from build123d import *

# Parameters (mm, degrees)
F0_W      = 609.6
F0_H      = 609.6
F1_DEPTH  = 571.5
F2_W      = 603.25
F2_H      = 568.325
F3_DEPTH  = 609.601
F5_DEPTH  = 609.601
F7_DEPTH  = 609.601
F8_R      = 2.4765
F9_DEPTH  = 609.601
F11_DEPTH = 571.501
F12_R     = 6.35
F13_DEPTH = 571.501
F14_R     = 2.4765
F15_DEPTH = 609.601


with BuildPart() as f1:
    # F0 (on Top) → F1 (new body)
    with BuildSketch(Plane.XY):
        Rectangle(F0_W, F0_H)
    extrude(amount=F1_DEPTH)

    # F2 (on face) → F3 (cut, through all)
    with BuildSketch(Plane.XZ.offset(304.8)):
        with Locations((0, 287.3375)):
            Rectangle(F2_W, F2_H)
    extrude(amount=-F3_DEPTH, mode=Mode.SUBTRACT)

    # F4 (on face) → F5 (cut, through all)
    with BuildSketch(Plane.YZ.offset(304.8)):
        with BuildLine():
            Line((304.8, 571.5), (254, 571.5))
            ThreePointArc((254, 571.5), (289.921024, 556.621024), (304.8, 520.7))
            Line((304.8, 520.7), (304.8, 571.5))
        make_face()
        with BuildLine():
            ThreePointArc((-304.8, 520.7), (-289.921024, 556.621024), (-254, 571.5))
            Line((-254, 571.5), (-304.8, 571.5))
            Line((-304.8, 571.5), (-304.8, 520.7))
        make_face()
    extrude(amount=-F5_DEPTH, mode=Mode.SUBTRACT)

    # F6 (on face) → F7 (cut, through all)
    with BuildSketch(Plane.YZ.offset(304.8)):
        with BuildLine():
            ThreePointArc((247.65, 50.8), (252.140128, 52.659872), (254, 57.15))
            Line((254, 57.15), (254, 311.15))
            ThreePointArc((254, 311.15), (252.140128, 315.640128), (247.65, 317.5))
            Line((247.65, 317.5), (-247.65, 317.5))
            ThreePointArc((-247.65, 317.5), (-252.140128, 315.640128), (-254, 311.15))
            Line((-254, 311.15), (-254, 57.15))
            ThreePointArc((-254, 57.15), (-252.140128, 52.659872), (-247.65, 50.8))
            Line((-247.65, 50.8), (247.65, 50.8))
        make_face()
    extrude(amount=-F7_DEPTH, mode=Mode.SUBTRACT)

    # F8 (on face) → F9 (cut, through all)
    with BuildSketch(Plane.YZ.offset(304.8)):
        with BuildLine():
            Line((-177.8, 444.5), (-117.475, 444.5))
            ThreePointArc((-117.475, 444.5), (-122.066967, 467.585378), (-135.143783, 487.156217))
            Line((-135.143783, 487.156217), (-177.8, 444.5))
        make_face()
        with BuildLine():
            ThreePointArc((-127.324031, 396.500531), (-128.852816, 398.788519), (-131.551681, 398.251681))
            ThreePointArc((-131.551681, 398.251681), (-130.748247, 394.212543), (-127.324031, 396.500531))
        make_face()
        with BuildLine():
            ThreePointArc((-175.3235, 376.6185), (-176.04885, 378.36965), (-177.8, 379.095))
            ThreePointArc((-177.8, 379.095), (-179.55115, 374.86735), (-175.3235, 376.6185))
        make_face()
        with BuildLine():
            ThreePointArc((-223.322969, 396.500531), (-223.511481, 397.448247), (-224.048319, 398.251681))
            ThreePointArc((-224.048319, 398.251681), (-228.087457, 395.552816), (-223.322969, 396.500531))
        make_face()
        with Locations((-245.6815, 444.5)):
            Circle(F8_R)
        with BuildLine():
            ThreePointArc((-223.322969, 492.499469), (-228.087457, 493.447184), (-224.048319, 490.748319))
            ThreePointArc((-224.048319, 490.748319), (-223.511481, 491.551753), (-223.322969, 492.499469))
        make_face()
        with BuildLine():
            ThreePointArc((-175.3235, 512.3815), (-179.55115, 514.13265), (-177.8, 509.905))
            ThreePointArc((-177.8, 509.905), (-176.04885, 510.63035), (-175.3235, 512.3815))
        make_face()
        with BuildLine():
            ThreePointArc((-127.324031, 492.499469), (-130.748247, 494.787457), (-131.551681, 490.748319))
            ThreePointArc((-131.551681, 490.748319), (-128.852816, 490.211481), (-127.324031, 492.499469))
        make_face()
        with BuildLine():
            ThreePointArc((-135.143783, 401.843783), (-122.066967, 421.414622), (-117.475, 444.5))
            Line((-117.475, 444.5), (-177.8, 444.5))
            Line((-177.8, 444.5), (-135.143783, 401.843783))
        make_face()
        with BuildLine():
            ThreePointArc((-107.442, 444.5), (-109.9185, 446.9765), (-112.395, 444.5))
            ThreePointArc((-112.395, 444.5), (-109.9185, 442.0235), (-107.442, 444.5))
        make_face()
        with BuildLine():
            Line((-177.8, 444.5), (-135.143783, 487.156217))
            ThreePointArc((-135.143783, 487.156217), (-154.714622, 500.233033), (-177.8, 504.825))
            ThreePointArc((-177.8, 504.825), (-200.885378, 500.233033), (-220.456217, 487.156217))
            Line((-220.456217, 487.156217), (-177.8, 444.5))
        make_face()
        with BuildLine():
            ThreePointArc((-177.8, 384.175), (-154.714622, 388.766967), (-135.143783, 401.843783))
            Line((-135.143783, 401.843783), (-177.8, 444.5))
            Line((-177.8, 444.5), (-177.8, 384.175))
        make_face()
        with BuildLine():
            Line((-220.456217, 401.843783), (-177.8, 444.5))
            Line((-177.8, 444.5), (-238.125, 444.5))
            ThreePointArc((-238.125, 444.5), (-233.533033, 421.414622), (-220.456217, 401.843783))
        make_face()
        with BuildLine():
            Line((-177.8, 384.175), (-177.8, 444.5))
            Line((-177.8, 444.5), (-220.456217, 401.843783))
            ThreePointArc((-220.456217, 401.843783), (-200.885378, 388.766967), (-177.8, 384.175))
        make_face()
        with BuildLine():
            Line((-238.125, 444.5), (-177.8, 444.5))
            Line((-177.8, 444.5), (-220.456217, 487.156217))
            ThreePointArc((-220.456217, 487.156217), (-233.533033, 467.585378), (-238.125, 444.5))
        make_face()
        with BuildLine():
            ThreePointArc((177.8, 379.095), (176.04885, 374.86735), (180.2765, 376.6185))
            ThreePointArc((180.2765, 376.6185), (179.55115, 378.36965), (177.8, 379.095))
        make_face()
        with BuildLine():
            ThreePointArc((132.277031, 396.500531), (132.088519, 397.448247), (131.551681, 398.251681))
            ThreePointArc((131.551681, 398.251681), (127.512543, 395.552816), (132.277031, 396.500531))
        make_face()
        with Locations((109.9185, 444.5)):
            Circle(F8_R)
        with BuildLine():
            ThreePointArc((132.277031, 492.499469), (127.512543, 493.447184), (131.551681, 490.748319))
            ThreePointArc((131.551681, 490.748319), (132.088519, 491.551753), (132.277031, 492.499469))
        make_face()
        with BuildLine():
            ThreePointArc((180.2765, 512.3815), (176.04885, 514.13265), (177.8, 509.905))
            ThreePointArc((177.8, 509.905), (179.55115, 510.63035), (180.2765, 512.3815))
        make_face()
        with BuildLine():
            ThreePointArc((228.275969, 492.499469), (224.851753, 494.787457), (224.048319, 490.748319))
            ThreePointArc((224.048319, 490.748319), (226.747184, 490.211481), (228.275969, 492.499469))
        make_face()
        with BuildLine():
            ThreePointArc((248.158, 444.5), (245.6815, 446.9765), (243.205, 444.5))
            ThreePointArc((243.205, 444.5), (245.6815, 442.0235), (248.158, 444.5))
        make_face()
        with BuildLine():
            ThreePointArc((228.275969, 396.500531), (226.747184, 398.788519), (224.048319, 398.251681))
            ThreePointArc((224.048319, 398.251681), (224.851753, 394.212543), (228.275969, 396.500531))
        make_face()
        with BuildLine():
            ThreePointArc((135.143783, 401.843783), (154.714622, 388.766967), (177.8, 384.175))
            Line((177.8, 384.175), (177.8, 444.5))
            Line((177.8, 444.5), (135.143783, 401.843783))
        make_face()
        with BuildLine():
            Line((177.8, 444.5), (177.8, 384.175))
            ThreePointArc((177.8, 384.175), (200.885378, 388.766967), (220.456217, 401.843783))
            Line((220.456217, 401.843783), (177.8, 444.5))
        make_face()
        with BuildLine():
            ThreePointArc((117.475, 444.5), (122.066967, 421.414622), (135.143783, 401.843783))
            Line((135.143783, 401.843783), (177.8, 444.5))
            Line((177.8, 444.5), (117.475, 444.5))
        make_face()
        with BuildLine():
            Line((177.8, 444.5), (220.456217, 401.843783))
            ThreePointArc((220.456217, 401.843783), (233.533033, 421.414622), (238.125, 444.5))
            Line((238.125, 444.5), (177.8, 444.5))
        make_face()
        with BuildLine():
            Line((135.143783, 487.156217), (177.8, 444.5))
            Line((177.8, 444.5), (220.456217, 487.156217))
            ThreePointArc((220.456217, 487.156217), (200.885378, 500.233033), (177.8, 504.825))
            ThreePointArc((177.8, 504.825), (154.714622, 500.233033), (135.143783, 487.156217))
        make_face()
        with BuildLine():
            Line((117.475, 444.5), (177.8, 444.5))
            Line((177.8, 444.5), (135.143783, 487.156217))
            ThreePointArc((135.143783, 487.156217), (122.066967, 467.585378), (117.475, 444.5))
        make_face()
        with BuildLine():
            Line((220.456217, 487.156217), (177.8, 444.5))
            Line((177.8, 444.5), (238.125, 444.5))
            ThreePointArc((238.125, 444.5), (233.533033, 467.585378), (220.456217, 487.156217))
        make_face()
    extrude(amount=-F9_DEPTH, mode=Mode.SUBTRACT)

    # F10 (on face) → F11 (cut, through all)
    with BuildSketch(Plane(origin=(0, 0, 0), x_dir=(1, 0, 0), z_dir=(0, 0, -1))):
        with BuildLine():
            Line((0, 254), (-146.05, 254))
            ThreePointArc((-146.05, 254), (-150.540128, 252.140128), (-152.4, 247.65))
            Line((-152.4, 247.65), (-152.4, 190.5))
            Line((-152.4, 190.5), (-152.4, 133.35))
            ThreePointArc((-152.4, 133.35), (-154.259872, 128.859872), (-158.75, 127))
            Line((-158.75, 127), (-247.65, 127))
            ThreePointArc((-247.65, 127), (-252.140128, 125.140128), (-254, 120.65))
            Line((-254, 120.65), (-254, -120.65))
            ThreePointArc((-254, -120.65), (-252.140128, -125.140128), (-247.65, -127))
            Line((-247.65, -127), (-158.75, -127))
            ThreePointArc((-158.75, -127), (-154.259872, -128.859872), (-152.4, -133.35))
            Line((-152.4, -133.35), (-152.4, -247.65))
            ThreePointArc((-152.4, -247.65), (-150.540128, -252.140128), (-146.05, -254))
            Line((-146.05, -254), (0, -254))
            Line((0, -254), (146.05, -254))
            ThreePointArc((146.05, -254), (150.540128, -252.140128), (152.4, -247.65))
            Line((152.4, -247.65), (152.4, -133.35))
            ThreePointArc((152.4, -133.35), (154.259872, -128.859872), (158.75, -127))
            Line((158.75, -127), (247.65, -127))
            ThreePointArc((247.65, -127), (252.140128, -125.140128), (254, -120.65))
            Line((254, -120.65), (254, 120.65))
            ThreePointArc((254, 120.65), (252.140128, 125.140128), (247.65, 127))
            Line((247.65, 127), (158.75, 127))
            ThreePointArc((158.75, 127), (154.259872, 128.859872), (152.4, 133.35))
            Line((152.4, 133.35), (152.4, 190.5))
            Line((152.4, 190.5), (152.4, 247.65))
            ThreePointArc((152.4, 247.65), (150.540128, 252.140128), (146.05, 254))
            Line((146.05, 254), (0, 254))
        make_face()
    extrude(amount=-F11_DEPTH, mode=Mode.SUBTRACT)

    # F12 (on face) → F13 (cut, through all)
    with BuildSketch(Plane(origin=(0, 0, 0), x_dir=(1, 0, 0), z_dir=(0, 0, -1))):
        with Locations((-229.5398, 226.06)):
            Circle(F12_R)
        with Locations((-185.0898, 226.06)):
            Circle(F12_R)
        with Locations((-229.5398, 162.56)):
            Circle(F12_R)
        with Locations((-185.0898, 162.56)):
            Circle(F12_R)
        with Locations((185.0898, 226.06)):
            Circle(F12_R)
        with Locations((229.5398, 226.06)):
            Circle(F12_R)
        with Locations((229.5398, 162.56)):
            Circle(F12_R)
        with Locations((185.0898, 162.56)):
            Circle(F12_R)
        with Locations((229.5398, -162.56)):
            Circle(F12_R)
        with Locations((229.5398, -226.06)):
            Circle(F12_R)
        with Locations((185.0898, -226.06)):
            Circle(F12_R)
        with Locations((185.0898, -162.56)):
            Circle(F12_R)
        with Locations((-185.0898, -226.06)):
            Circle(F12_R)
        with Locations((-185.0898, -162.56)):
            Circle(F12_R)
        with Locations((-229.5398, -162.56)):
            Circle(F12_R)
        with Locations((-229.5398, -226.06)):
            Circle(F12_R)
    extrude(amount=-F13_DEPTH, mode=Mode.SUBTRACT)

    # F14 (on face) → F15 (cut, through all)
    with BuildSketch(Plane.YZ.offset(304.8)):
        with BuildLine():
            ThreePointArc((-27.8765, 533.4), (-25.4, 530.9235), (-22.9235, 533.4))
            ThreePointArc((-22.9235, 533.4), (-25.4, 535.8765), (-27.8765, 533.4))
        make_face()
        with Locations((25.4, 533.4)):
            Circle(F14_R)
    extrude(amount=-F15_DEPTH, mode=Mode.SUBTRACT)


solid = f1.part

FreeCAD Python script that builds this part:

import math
import FreeCAD as App
import Part
import Sketcher

V = App.Vector
Q = App.Units.Quantity


def add_polygon(sketch, points):
    """Adds a closed chain of lines whose ends are joined by coincident constraints."""
    first, n = sketch.GeometryCount, len(points)
    for a, b in zip(points, points[1:] + points[:1]):
        sketch.addGeometry(Part.LineSegment(App.Vector(*a, 0), App.Vector(*b, 0)), False)
    for i in range(n):
        sketch.addConstraint(Sketcher.Constraint("Coincident", first + i, 2, first + (i + 1) % n, 1))

doc = App.newDocument("Part")
body = doc.addObject("PartDesign::Body", "Body")

# Sketch on XY plane
sketch1 = body.newObject("Sketcher::SketchObject", "Sketch")
sketch1.AttachmentSupport = (doc.getObject("XY_Plane"), [""])
sketch1.MapMode = "FlatFace"
add_polygon(sketch1, [(-305, 305), (-305, -305), (305, -305), (305, 305)])  # lines 0-3
sketch1.addConstraint(Sketcher.Constraint("Vertical", 0))
sketch1.addConstraint(Sketcher.Constraint("Horizontal", 1))
sketch1.addConstraint(Sketcher.Constraint("Vertical", 2))
sketch1.addConstraint(Sketcher.Constraint("Horizontal", 3))
sketch1.addConstraint(Sketcher.Constraint("Symmetric", 0, 2, 2, 2, -1, 1))
sketch1.addConstraint(Sketcher.Constraint("Equal", 3, 0))
sketch1.addConstraint(Sketcher.Constraint("DistanceX", 1, 1, 1, 2, Q("24 in")))
pad1 = body.newObject("PartDesign::Pad", "Pad")
pad1.Profile = sketch1
pad1.Length = Q("22.5 in")

# Sketch on XZ plane
sketch2 = body.newObject("Sketcher::SketchObject", "Sketch001")
sketch2.AttachmentSupport = (doc.getObject("XZ_Plane"), [""])
sketch2.MapMode = "FlatFace"
sketch2.AttachmentOffset = App.Placement(V(0, 0, 12 * 25.4), App.Rotation())
add_polygon(sketch2, [(-302, 572), (-302, 3), (302, 3), (302, 572)])  # lines 0-3
sketch2.addConstraint(Sketcher.Constraint("Vertical", 0))
sketch2.addConstraint(Sketcher.Constraint("Horizontal", 1))
sketch2.addConstraint(Sketcher.Constraint("Vertical", 2))
sketch2.addConstraint(Sketcher.Constraint("Horizontal", 3))
sketch2.addConstraint(Sketcher.Constraint("DistanceX", 1, 1, 1, 2, Q("23.75 in")))
sketch2.addConstraint(Sketcher.Constraint("DistanceY", -1, 1, 2, 2, Q("22.5 in")))
sketch2.addConstraint(Sketcher.Constraint("DistanceY", 0, 2, 0, 1, Q("22.375 in")))
sketch2.addConstraint(Sketcher.Constraint("DistanceX", 0, 2, -1, 1, Q("11.875 in")))
pocket1 = body.newObject("PartDesign::Pocket", "Pocket")
pocket1.Profile = sketch2
pocket1.Type = "ThroughAll"

# Sketch on YZ plane
sketch3 = body.newObject("Sketcher::SketchObject", "Sketch002")
sketch3.AttachmentSupport = (doc.getObject("YZ_Plane"), [""])
sketch3.MapMode = "FlatFace"
sketch3.AttachmentOffset = App.Placement(V(0, 0, 12 * 25.4), App.Rotation())
sketch3.addGeometry(Part.LineSegment(V(305, 572, 0), V(254, 572, 0)), False)
sketch3.addGeometry(Part.ArcOfCircle(Part.Circle(V(254, 521, 0), V(0, 0, 1), 51), math.radians(0), math.radians(90)), False)
sketch3.addGeometry(Part.LineSegment(V(305, 521, 0), V(305, 572, 0)), False)
sketch3.addGeometry(Part.ArcOfCircle(Part.Circle(V(-254, 521, 0), V(0, 0, 1), 51), math.radians(90), math.radians(180)), False)
sketch3.addGeometry(Part.LineSegment(V(-254, 572, 0), V(-305, 572, 0)), False)
sketch3.addGeometry(Part.LineSegment(V(-305, 572, 0), V(-305, 521, 0)), False)
sketch3.addConstraint(Sketcher.Constraint("Tangent", 0, 2, 1, 2))
sketch3.addConstraint(Sketcher.Constraint("Tangent", 1, 1, 2, 1))
sketch3.addConstraint(Sketcher.Constraint("Coincident", 2, 2, 0, 1))
sketch3.addConstraint(Sketcher.Constraint("Tangent", 3, 1, 4, 1))
sketch3.addConstraint(Sketcher.Constraint("Coincident", 4, 2, 5, 1))
sketch3.addConstraint(Sketcher.Constraint("Tangent", 5, 2, 3, 2))
sketch3.addConstraint(Sketcher.Constraint("Horizontal", 0))
sketch3.addConstraint(Sketcher.Constraint("Vertical", 2))
sketch3.addConstraint(Sketcher.Constraint("Horizontal", 4))
sketch3.addConstraint(Sketcher.Constraint("Vertical", 5))
sketch3.addConstraint(Sketcher.Constraint("Equal", 1, 3))
sketch3.addConstraint(Sketcher.Constraint("Symmetric", 1, 3, 3, 3, -2))
sketch3.addConstraint(Sketcher.Constraint("Radius", 1, Q("2.0000001 in")))
sketch3.addConstraint(Sketcher.Constraint("DistanceX", -1, 1, 1, 3, Q("9.9999999 in")))
sketch3.addConstraint(Sketcher.Constraint("DistanceY", -1, 1, 1, 3, Q("20.4999999 in")))
pocket2 = body.newObject("PartDesign::Pocket", "Pocket001")
pocket2.Profile = sketch3
pocket2.Type = "ThroughAll"

# Sketch on YZ plane
sketch4 = body.newObject("Sketcher::SketchObject", "Sketch003")
sketch4.AttachmentSupport = (doc.getObject("YZ_Plane"), [""])
sketch4.MapMode = "FlatFace"
sketch4.AttachmentOffset = App.Placement(V(0, 0, 12 * 25.4), App.Rotation())
sketch4.addGeometry(Part.ArcOfCircle(Part.Circle(V(248, 57, 0), V(0, 0, 1), 6), math.radians(-90), math.radians(0)), False)
sketch4.addGeometry(Part.LineSegment(V(254, 57, 0), V(254, 311, 0)), False)
sketch4.addGeometry(Part.ArcOfCircle(Part.Circle(V(248, 311, 0), V(0, 0, 1), 6), math.radians(0), math.radians(90)), False)
sketch4.addGeometry(Part.LineSegment(V(248, 318, 0), V(-248, 318, 0)), False)
sketch4.addGeometry(Part.ArcOfCircle(Part.Circle(V(-248, 311, 0), V(0, 0, 1), 6), math.radians(90), math.radians(180)), False)
sketch4.addGeometry(Part.LineSegment(V(-254, 311, 0), V(-254, 57, 0)), False)
sketch4.addGeometry(Part.ArcOfCircle(Part.Circle(V(-248, 57, 0), V(0, 0, 1), 6), math.radians(-180), math.radians(-90)), False)
sketch4.addGeometry(Part.LineSegment(V(-248, 51, 0), V(248, 51, 0)), False)
sketch4.addConstraint(Sketcher.Constraint("Tangent", 0, 2, 1, 1))
sketch4.addConstraint(Sketcher.Constraint("Tangent", 1, 2, 2, 1))
sketch4.addConstraint(Sketcher.Constraint("Tangent", 2, 2, 3, 1))
sketch4.addConstraint(Sketcher.Constraint("Tangent", 3, 2, 4, 1))
sketch4.addConstraint(Sketcher.Constraint("Tangent", 4, 2, 5, 1))
sketch4.addConstraint(Sketcher.Constraint("Tangent", 5, 2, 6, 1))
sketch4.addConstraint(Sketcher.Constraint("Tangent", 6, 2, 7, 1))
sketch4.addConstraint(Sketcher.Constraint("Tangent", 7, 2, 0, 1))
sketch4.addConstraint(Sketcher.Constraint("Vertical", 1))
sketch4.addConstraint(Sketcher.Constraint("Horizontal", 3))
sketch4.addConstraint(Sketcher.Constraint("Vertical", 5))
sketch4.addConstraint(Sketcher.Constraint("Horizontal", 7))
sketch4.addConstraint(Sketcher.Constraint("Equal", 0, 2))
sketch4.addConstraint(Sketcher.Constraint("Equal", 2, 4))
sketch4.addConstraint(Sketcher.Constraint("Equal", 4, 6))
sketch4.addConstraint(Sketcher.Constraint("DistanceY", 1, 1, 1, 2, Q("10 in")))
sketch4.addConstraint(Sketcher.Constraint("Radius", 0, Q("0.25 in")))
sketch4.addConstraint(Sketcher.Constraint("DistanceX", 3, 2, 3, 1, Q("19.5 in")))
sketch4.addConstraint(Sketcher.Constraint("DistanceX", -1, 1, 0, 2, Q("10 in")))
sketch4.addConstraint(Sketcher.Constraint("DistanceY", -1, 1, 6, 2, Q("2 in")))
pocket3 = body.newObject("PartDesign::Pocket", "Pocket002")
pocket3.Profile = sketch4
pocket3.Type = "ThroughAll"

# Sketch on YZ plane
sketch5 = body.newObject("Sketcher::SketchObject", "Sketch004")
sketch5.AttachmentSupport = (doc.getObject("YZ_Plane"), [""])
sketch5.MapMode = "FlatFace"
sketch5.AttachmentOffset = App.Placement(V(0, 0, 12 * 25.4), App.Rotation())
sketch5.addGeometry(Part.ArcOfCircle(Part.Circle(V(-177.8, 444.5, 0), V(0, 0, 1), 60.3), math.radians(0), math.radians(45)), False)
sketch5.addGeometry(Part.ArcOfCircle(Part.Circle(V(-177.8, 444.5, 0), V(0, 0, 1), 60.3), math.radians(45), math.radians(90)), False)
sketch5.addGeometry(Part.ArcOfCircle(Part.Circle(V(-177.8, 444.5, 0), V(0, 0, 1), 60.3), math.radians(90), math.radians(135)), False)
sketch5.addGeometry(Part.ArcOfCircle(Part.Circle(V(-177.8, 444.5, 0), V(0, 0, 1), 60.3), math.radians(135), math.radians(180)), False)
sketch5.addGeometry(Part.ArcOfCircle(Part.Circle(V(-177.8, 444.5, 0), V(0, 0, 1), 60.3), math.radians(180), math.radians(225)), False)
sketch5.addGeometry(Part.ArcOfCircle(Part.Circle(V(-177.8, 444.5, 0), V(0, 0, 1), 60.3), math.radians(-135), math.radians(-90)), False)
sketch5.addGeometry(Part.ArcOfCircle(Part.Circle(V(-177.8, 444.5, 0), V(0, 0, 1), 60.3), math.radians(-90), math.radians(-45)), False)
sketch5.addGeometry(Part.ArcOfCircle(Part.Circle(V(-177.8, 444.5, 0), V(0, 0, 1), 60.3), math.radians(-45), math.radians(0)), False)
sketch5.addGeometry(Part.ArcOfCircle(Part.Circle(V(-129.8, 396.5, 0), V(0, 0, 1), 2.5), math.radians(0), math.radians(135)), False)
sketch5.addGeometry(Part.ArcOfCircle(Part.Circle(V(-129.8, 396.5, 0), V(0, 0, 1), 2.5), math.radians(135), math.radians(360)), False)
sketch5.addGeometry(Part.ArcOfCircle(Part.Circle(V(-177.8, 376.6, 0), V(0, 0, 1), 2.5), math.radians(0), math.radians(90)), False)
sketch5.addGeometry(Part.ArcOfCircle(Part.Circle(V(-177.8, 376.6, 0), V(0, 0, 1), 2.5), math.radians(90), math.radians(360)), False)
sketch5.addGeometry(Part.ArcOfCircle(Part.Circle(V(-225.8, 396.5, 0), V(0, 0, 1), 2.5), math.radians(0), math.radians(45)), False)
sketch5.addGeometry(Part.ArcOfCircle(Part.Circle(V(-225.8, 396.5, 0), V(0, 0, 1), 2.5), math.radians(45), math.radians(360)), False)
sketch5.addGeometry(Part.Circle(V(-245.7, 444.5, 0), V(0, 0, 1), 2.5), False)
sketch5.addGeometry(Part.ArcOfCircle(Part.Circle(V(-225.8, 492.5, 0), V(0, 0, 1), 2.5), math.radians(0), math.radians(315)), False)
sketch5.addGeometry(Part.ArcOfCircle(Part.Circle(V(-225.8, 492.5, 0), V(0, 0, 1), 2.5), math.radians(-45), math.radians(0)), False)
sketch5.addGeometry(Part.ArcOfCircle(Part.Circle(V(-177.8, 512.4, 0), V(0, 0, 1), 2.5), math.radians(0), math.radians(270)), False)
sketch5.addGeometry(Part.ArcOfCircle(Part.Circle(V(-177.8, 512.4, 0), V(0, 0, 1), 2.5), math.radians(-90), math.radians(0)), False)
sketch5.addGeometry(Part.ArcOfCircle(Part.Circle(V(-129.8, 492.5, 0), V(0, 0, 1), 2.5), math.radians(0), math.radians(225)), False)
sketch5.addGeometry(Part.ArcOfCircle(Part.Circle(V(-129.8, 492.5, 0), V(0, 0, 1), 2.5), math.radians(-135), math.radians(0)), False)
sketch5.addGeometry(Part.Circle(V(-109.9, 444.5, 0), V(0, 0, 1), 2.5), False)
sketch5.addGeometry(Part.ArcOfCircle(Part.Circle(V(177.8, 376.6, 0), V(0, 0, 1), 2.5), math.radians(90), math.radians(360)), False)
sketch5.addGeometry(Part.ArcOfCircle(Part.Circle(V(177.8, 376.6, 0), V(0, 0, 1), 2.5), math.radians(0), math.radians(90)), False)
sketch5.addGeometry(Part.ArcOfCircle(Part.Circle(V(129.8, 396.5, 0), V(0, 0, 1), 2.5), math.radians(0), math.radians(45)), False)
sketch5.addGeometry(Part.ArcOfCircle(Part.Circle(V(129.8, 396.5, 0), V(0, 0, 1), 2.5), math.radians(45), math.radians(360)), False)
sketch5.addGeometry(Part.Circle(V(109.9, 444.5, 0), V(0, 0, 1), 2.5), False)
sketch5.addGeometry(Part.ArcOfCircle(Part.Circle(V(129.8, 492.5, 0), V(0, 0, 1), 2.5), math.radians(0), math.radians(315)), False)
sketch5.addGeometry(Part.ArcOfCircle(Part.Circle(V(129.8, 492.5, 0), V(0, 0, 1), 2.5), math.radians(-45), math.radians(0)), False)
sketch5.addGeometry(Part.ArcOfCircle(Part.Circle(V(177.8, 512.4, 0), V(0, 0, 1), 2.5), math.radians(0), math.radians(270)), False)
sketch5.addGeometry(Part.ArcOfCircle(Part.Circle(V(177.8, 512.4, 0), V(0, 0, 1), 2.5), math.radians(-90), math.radians(0)), False)
sketch5.addGeometry(Part.ArcOfCircle(Part.Circle(V(225.8, 492.5, 0), V(0, 0, 1), 2.5), math.radians(0), math.radians(225)), False)
sketch5.addGeometry(Part.ArcOfCircle(Part.Circle(V(225.8, 492.5, 0), V(0, 0, 1), 2.5), math.radians(-135), math.radians(0)), False)
sketch5.addGeometry(Part.Circle(V(245.7, 444.5, 0), V(0, 0, 1), 2.5), False)
sketch5.addGeometry(Part.ArcOfCircle(Part.Circle(V(225.8, 396.5, 0), V(0, 0, 1), 2.5), math.radians(0), math.radians(135)), False)
sketch5.addGeometry(Part.ArcOfCircle(Part.Circle(V(225.8, 396.5, 0), V(0, 0, 1), 2.5), math.radians(135), math.radians(360)), False)
sketch5.addGeometry(Part.ArcOfCircle(Part.Circle(V(177.8, 444.5, 0), V(0, 0, 1), 60.3), math.radians(-135), math.radians(-90)), False)
sketch5.addGeometry(Part.ArcOfCircle(Part.Circle(V(177.8, 444.5, 0), V(0, 0, 1), 60.3), math.radians(-90), math.radians(-45)), False)
sketch5.addGeometry(Part.ArcOfCircle(Part.Circle(V(177.8, 444.5, 0), V(0, 0, 1), 60.3), math.radians(-45), math.radians(0)), False)
sketch5.addGeometry(Part.ArcOfCircle(Part.Circle(V(177.8, 444.5, 0), V(0, 0, 1), 60.3), math.radians(0), math.radians(45)), False)
sketch5.addGeometry(Part.ArcOfCircle(Part.Circle(V(177.8, 444.5, 0), V(0, 0, 1), 60.3), math.radians(45), math.radians(90)), False)
sketch5.addGeometry(Part.ArcOfCircle(Part.Circle(V(177.8, 444.5, 0), V(0, 0, 1), 60.3), math.radians(90), math.radians(135)), False)
sketch5.addGeometry(Part.ArcOfCircle(Part.Circle(V(177.8, 444.5, 0), V(0, 0, 1), 60.3), math.radians(135), math.radians(180)), False)
sketch5.addGeometry(Part.ArcOfCircle(Part.Circle(V(177.8, 444.5, 0), V(0, 0, 1), 60.3), math.radians(180), math.radians(225)), False)
sketch5.addConstraint(Sketcher.Constraint("Tangent", 0, 2, 1, 1))
sketch5.addConstraint(Sketcher.Constraint("Tangent", 1, 2, 2, 1))
sketch5.addConstraint(Sketcher.Constraint("Tangent", 2, 2, 3, 1))
sketch5.addConstraint(Sketcher.Constraint("Tangent", 3, 2, 4, 1))
sketch5.addConstraint(Sketcher.Constraint("Tangent", 4, 2, 5, 1))
sketch5.addConstraint(Sketcher.Constraint("Tangent", 5, 2, 6, 1))
sketch5.addConstraint(Sketcher.Constraint("Tangent", 6, 2, 7, 1))
sketch5.addConstraint(Sketcher.Constraint("Tangent", 7, 2, 0, 1))
sketch5.addConstraint(Sketcher.Constraint("Tangent", 8, 1, 9, 2))
sketch5.addConstraint(Sketcher.Constraint("Coincident", 9, 1, 8, 2))
sketch5.addConstraint(Sketcher.Constraint("Tangent", 10, 1, 11, 2))
sketch5.addConstraint(Sketcher.Constraint("Coincident", 11, 1, 10, 2))
sketch5.addConstraint(Sketcher.Constraint("Tangent", 12, 1, 13, 2))
sketch5.addConstraint(Sketcher.Constraint("Coincident", 13, 1, 12, 2))
sketch5.addConstraint(Sketcher.Constraint("Tangent", 15, 1, 16, 2))
sketch5.addConstraint(Sketcher.Constraint("Coincident", 16, 1, 15, 2))
sketch5.addConstraint(Sketcher.Constraint("Tangent", 17, 1, 18, 2))
sketch5.addConstraint(Sketcher.Constraint("Coincident", 18, 1, 17, 2))
sketch5.addConstraint(Sketcher.Constraint("Tangent", 19, 1, 20, 2))
sketch5.addConstraint(Sketcher.Constraint("Coincident", 20, 1, 19, 2))
sketch5.addConstraint(Sketcher.Constraint("Tangent", 22, 1, 23, 2))
sketch5.addConstraint(Sketcher.Constraint("Coincident", 23, 1, 22, 2))
sketch5.addConstraint(Sketcher.Constraint("Tangent", 24, 1, 25, 2))
sketch5.addConstraint(Sketcher.Constraint("Coincident", 25, 1, 24, 2))
sketch5.addConstraint(Sketcher.Constraint("Tangent", 27, 1, 28, 2))
sketch5.addConstraint(Sketcher.Constraint("Coincident", 28, 1, 27, 2))
sketch5.addConstraint(Sketcher.Constraint("Tangent", 29, 1, 30, 2))
sketch5.addConstraint(Sketcher.Constraint("Coincident", 30, 1, 29, 2))
sketch5.addConstraint(Sketcher.Constraint("Tangent", 31, 1, 32, 2))
sketch5.addConstraint(Sketcher.Constraint("Coincident", 32, 1, 31, 2))
sketch5.addConstraint(Sketcher.Constraint("Tangent", 34, 1, 35, 2))
sketch5.addConstraint(Sketcher.Constraint("Coincident", 35, 1, 34, 2))
sketch5.addConstraint(Sketcher.Constraint("Tangent", 36, 2, 37, 1))
sketch5.addConstraint(Sketcher.Constraint("Tangent", 37, 2, 38, 1))
sketch5.addConstraint(Sketcher.Constraint("Tangent", 38, 2, 39, 1))
sketch5.addConstraint(Sketcher.Constraint("Tangent", 39, 2, 40, 1))
sketch5.addConstraint(Sketcher.Constraint("Tangent", 40, 2, 41, 1))
sketch5.addConstraint(Sketcher.Constraint("Tangent", 41, 2, 42, 1))
sketch5.addConstraint(Sketcher.Constraint("Tangent", 42, 2, 43, 1))
sketch5.addConstraint(Sketcher.Constraint("Tangent", 43, 2, 36, 1))
sketch5.addConstraint(Sketcher.Constraint("Coincident", 2, 3, 0, 3))
sketch5.addConstraint(Sketcher.Constraint("Coincident", 4, 3, 0, 3))
sketch5.addConstraint(Sketcher.Constraint("Coincident", 38, 3, 36, 3))
sketch5.addConstraint(Sketcher.Constraint("Coincident", 40, 3, 36, 3))
sketch5.addConstraint(Sketcher.Constraint("Equal", 4, 5))
sketch5.addConstraint(Sketcher.Constraint("Equal", 9, 10))
sketch5.addConstraint(Sketcher.Constraint("Equal", 11, 13))
sketch5.addConstraint(Sketcher.Constraint("Equal", 13, 14))
sketch5.addConstraint(Sketcher.Constraint("Equal", 14, 15))
sketch5.addConstraint(Sketcher.Constraint("Equal", 15, 17))
sketch5.addConstraint(Sketcher.Constraint("Equal", 18, 19))
sketch5.addConstraint(Sketcher.Constraint("Equal", 20, 21))
sketch5.addConstraint(Sketcher.Constraint("Equal", 21, 22))
sketch5.addConstraint(Sketcher.Constraint("Equal", 16, 24))
sketch5.addConstraint(Sketcher.Constraint("Equal", 25, 26))
sketch5.addConstraint(Sketcher.Constraint("Equal", 26, 27))
sketch5.addConstraint(Sketcher.Constraint("Equal", 27, 29))
sketch5.addConstraint(Sketcher.Constraint("Equal", 30, 31))
sketch5.addConstraint(Sketcher.Constraint("Equal", 32, 33))
sketch5.addConstraint(Sketcher.Constraint("Equal", 33, 34))
sketch5.addConstraint(Sketcher.Constraint("Equal", 7, 36))
sketch5.addConstraint(Sketcher.Constraint("Equal", 40, 41))
sketch5.addConstraint(Sketcher.Constraint("Symmetric", 10, 3, 22, 3, -2))
sketch5.addConstraint(Sketcher.Constraint("Symmetric", 8, 3, 24, 3, -2))
sketch5.addConstraint(Sketcher.Constraint("Symmetric", 21, 3, 26, 3, -2))
sketch5.addConstraint(Sketcher.Constraint("Symmetric", 19, 3, 27, 3, -2))
sketch5.addConstraint(Sketcher.Constraint("Symmetric", 17, 3, 29, 3, -2))
sketch5.addConstraint(Sketcher.Constraint("Symmetric", 15, 3, 31, 3, -2))
sketch5.addConstraint(Sketcher.Constraint("Symmetric", 14, 3, 33, 3, -2))
sketch5.addConstraint(Sketcher.Constraint("Symmetric", 12, 3, 34, 3, -2))
sketch5.addConstraint(Sketcher.Constraint("Symmetric", 0, 3, 36, 3, -2))
sketch5.addConstraint(Sketcher.Constraint("Horizontal", 9, 3, 13, 3))
sketch5.addConstraint(Sketcher.Constraint("Horizontal", 7, 3, 14, 3))
sketch5.addConstraint(Sketcher.Constraint("Horizontal", 15, 3, 19, 3))
sketch5.addConstraint(Sketcher.Constraint("Horizontal", 14, 3, 21, 3))
sketch5.addConstraint(Sketcher.Constraint("Horizontal", 0, 2, 2, 2))
sketch5.addConstraint(Sketcher.Constraint("Horizontal", 43, 3, 3, 2))
sketch5.addConstraint(Sketcher.Constraint("Horizontal", 4, 2, 6, 2))
sketch5.addConstraint(Sketcher.Constraint("Horizontal", 3, 2, 7, 2))
sketch5.addConstraint(Sketcher.Constraint("Horizontal", 35, 3, 8, 1))
sketch5.addConstraint(Sketcher.Constraint("Horizontal", 23, 3, 10, 1))
sketch5.addConstraint(Sketcher.Constraint("Horizontal", 8, 1, 12, 1))
sketch5.addConstraint(Sketcher.Constraint("Horizontal", 9, 1, 13, 1))
sketch5.addConstraint(Sketcher.Constraint("Horizontal", 32, 3, 15, 1))
sketch5.addConstraint(Sketcher.Constraint("Horizontal", 30, 3, 17, 1))
sketch5.addConstraint(Sketcher.Constraint("Horizontal", 15, 1, 19, 1))
sketch5.addConstraint(Sketcher.Constraint("Horizontal", 16, 1, 20, 1))
sketch5.addConstraint(Sketcher.Constraint("Horizontal", 10, 1, 23, 1))
sketch5.addConstraint(Sketcher.Constraint("Horizontal", 12, 1, 24, 1))
sketch5.addConstraint(Sketcher.Constraint("Horizontal", 13, 1, 25, 1))
sketch5.addConstraint(Sketcher.Constraint("Horizontal", 19, 1, 27, 1))
sketch5.addConstraint(Sketcher.Constraint("Horizontal", 20, 1, 28, 1))
sketch5.addConstraint(Sketcher.Constraint("Horizontal", 17, 1, 29, 1))
sketch5.addConstraint(Sketcher.Constraint("Horizontal", 27, 1, 31, 1))
sketch5.addConstraint(Sketcher.Constraint("Horizontal", 28, 1, 32, 1))
sketch5.addConstraint(Sketcher.Constraint("Horizontal", 24, 1, 34, 1))
sketch5.addConstraint(Sketcher.Constraint("Horizontal", 25, 1, 35, 1))
sketch5.addConstraint(Sketcher.Constraint("Horizontal", 6, 2, 37, 2))
sketch5.addConstraint(Sketcher.Constraint("Horizontal", 7, 2, 38, 2))
sketch5.addConstraint(Sketcher.Constraint("Horizontal", 2, 2, 39, 2))
sketch5.addConstraint(Sketcher.Constraint("Horizontal", 39, 2, 41, 2))
sketch5.addConstraint(Sketcher.Constraint("Horizontal", 38, 2, 42, 2))
sketch5.addConstraint(Sketcher.Constraint("Horizontal", 37, 2, 43, 2))
sketch5.addConstraint(Sketcher.Constraint("Vertical", 6, 3, 10, 3))
sketch5.addConstraint(Sketcher.Constraint("Vertical", 13, 3, 15, 3))
sketch5.addConstraint(Sketcher.Constraint("Vertical", 11, 3, 17, 3))
sketch5.addConstraint(Sketcher.Constraint("Vertical", 9, 3, 19, 3))
sketch5.addConstraint(Sketcher.Constraint("Vertical", 18, 3, 1, 2))
sketch5.addConstraint(Sketcher.Constraint("Vertical", 2, 2, 4, 2))
sketch5.addConstraint(Sketcher.Constraint("Vertical", 1, 2, 5, 2))
sketch5.addConstraint(Sketcher.Constraint("Vertical", 5, 2, 11, 1))
sketch5.addConstraint(Sketcher.Constraint("Vertical", 13, 1, 16, 1))
sketch5.addConstraint(Sketcher.Constraint("Vertical", 11, 1, 18, 1))
sketch5.addConstraint(Sketcher.Constraint("Vertical", 43, 3, 22, 1))
sketch5.addConstraint(Sketcher.Constraint("Vertical", 22, 1, 30, 1))
sketch5.addConstraint(Sketcher.Constraint("Vertical", 30, 1, 36, 2))
sketch5.addConstraint(Sketcher.Constraint("Vertical", 36, 2, 40, 2))
sketch5.addConstraint(Sketcher.Constraint("Diameter", 14, Q("0.195 in")))
sketch5.addConstraint(Sketcher.Constraint("DistanceX", 0, 3, -1, 1, Q("7.0000001 in")))
sketch5.addConstraint(Sketcher.Constraint("Radius", 0, Q("2.3750001 in")))
sketch5.addConstraint(Sketcher.Constraint("DistanceY", -1, 1, 0, 3, Q("17.5 in")))
sketch5.addConstraint(Sketcher.Constraint("DistanceY", -1, 1, 11, 1, Q("14.925 in")))
sketch5.addConstraint(Sketcher.Constraint("DistanceY", -1, 1, 18, 1, Q("20.075 in")))
sketch5.addConstraint(Sketcher.Constraint("DistanceX", 14, 3, -1, 1, Q("9.6725 in")))
sketch5.addConstraint(Sketcher.Constraint("DistanceX", 21, 3, -1, 1, Q("4.3275 in")))
sketch5.addConstraint(Sketcher.Constraint("DistanceX", 9, 1, -1, 1, Q("5.1792 in")))
sketch5.addConstraint(Sketcher.Constraint("DistanceY", -1, 1, 9, 1, Q("15.6792 in")))
sketch5.addConstraint(Sketcher.Constraint("DistanceX", 13, 1, -1, 1, Q("8.8208 in")))
sketch5.addConstraint(Sketcher.Constraint("DistanceY", -1, 1, 16, 1, Q("19.3208 in")))
sketch5.addConstraint(Sketcher.Constraint("DistanceX", 8, 3, -1, 1, 129.800531))
sketch5.addConstraint(Sketcher.Constraint("DistanceX", 0, 2, -1, 1, 135.143783))
pocket4 = body.newObject("PartDesign::Pocket", "Pocket003")
pocket4.Profile = sketch5
pocket4.Type = "ThroughAll"

# Sketch on XY plane
sketch6 = body.newObject("Sketcher::SketchObject", "Sketch005")
sketch6.AttachmentSupport = (doc.getObject("XY_Plane"), [""])
sketch6.MapMode = "FlatFace"
sketch6.addGeometry(Part.ArcOfCircle(Part.Circle(V(-146, -248, 0), V(0, 0, 1), 6), math.radians(-180), math.radians(-90)), False)
sketch6.addGeometry(Part.LineSegment(V(-152, -248, 0), V(-152, -133, 0)), False)
sketch6.addGeometry(Part.ArcOfCircle(Part.Circle(V(-159, -133, 0), V(0, 0, 1), 6), math.radians(0), math.radians(90)), False)
sketch6.addGeometry(Part.LineSegment(V(-159, -127, 0), V(-248, -127, 0)), False)
sketch6.addGeometry(Part.ArcOfCircle(Part.Circle(V(-248, -121, 0), V(0, 0, 1), 6), math.radians(-180), math.radians(-90)), False)
sketch6.addGeometry(Part.LineSegment(V(-254, -121, 0), V(-254, 121, 0)), False)
sketch6.addGeometry(Part.ArcOfCircle(Part.Circle(V(-248, 121, 0), V(0, 0, 1), 6), math.radians(90), math.radians(180)), False)
sketch6.addGeometry(Part.LineSegment(V(-248, 127, 0), V(-159, 127, 0)), False)
sketch6.addGeometry(Part.ArcOfCircle(Part.Circle(V(-159, 133, 0), V(0, 0, 1), 6), math.radians(-90), math.radians(0)), False)
sketch6.addGeometry(Part.LineSegment(V(-152, 133, 0), V(-152, 248, 0)), False)
sketch6.addGeometry(Part.ArcOfCircle(Part.Circle(V(-146, 248, 0), V(0, 0, 1), 6), math.radians(90), math.radians(180)), False)
sketch6.addGeometry(Part.LineSegment(V(-146, 254, 0), V(146, 254, 0)), False)
sketch6.addGeometry(Part.ArcOfCircle(Part.Circle(V(146, 248, 0), V(0, 0, 1), 6), math.radians(0), math.radians(90)), False)
sketch6.addGeometry(Part.LineSegment(V(152, 248, 0), V(152, 133, 0)), False)
sketch6.addGeometry(Part.ArcOfCircle(Part.Circle(V(159, 133, 0), V(0, 0, 1), 6), math.radians(-180), math.radians(-90)), False)
sketch6.addGeometry(Part.LineSegment(V(159, 127, 0), V(248, 127, 0)), False)
sketch6.addGeometry(Part.ArcOfCircle(Part.Circle(V(248, 121, 0), V(0, 0, 1), 6), math.radians(0), math.radians(90)), False)
sketch6.addGeometry(Part.LineSegment(V(254, 121, 0), V(254, -121, 0)), False)
sketch6.addGeometry(Part.ArcOfCircle(Part.Circle(V(248, -121, 0), V(0, 0, 1), 6), math.radians(-90), math.radians(0)), False)
sketch6.addGeometry(Part.LineSegment(V(248, -127, 0), V(159, -127, 0)), False)
sketch6.addGeometry(Part.ArcOfCircle(Part.Circle(V(159, -133, 0), V(0, 0, 1), 6), math.radians(90), math.radians(180)), False)
sketch6.addGeometry(Part.LineSegment(V(152, -133, 0), V(152, -248, 0)), False)
sketch6.addGeometry(Part.ArcOfCircle(Part.Circle(V(146, -248, 0), V(0, 0, 1), 6), math.radians(-90), math.radians(0)), False)
sketch6.addGeometry(Part.LineSegment(V(146, -254, 0), V(-146, -254, 0)), False)
sketch6.addConstraint(Sketcher.Constraint("Tangent", 0, 1, 1, 1))
sketch6.addConstraint(Sketcher.Constraint("Tangent", 1, 2, 2, 1))
sketch6.addConstraint(Sketcher.Constraint("Tangent", 2, 2, 3, 1))
sketch6.addConstraint(Sketcher.Constraint("Tangent", 3, 2, 4, 2))
sketch6.addConstraint(Sketcher.Constraint("Tangent", 4, 1, 5, 1))
sketch6.addConstraint(Sketcher.Constraint("Tangent", 5, 2, 6, 2))
sketch6.addConstraint(Sketcher.Constraint("Tangent", 6, 1, 7, 1))
sketch6.addConstraint(Sketcher.Constraint("Tangent", 7, 2, 8, 1))
sketch6.addConstraint(Sketcher.Constraint("Tangent", 8, 2, 9, 1))
sketch6.addConstraint(Sketcher.Constraint("Tangent", 9, 2, 10, 2))
sketch6.addConstraint(Sketcher.Constraint("Tangent", 10, 1, 11, 1))
sketch6.addConstraint(Sketcher.Constraint("Tangent", 11, 2, 12, 2))
sketch6.addConstraint(Sketcher.Constraint("Tangent", 12, 1, 13, 1))
sketch6.addConstraint(Sketcher.Constraint("Tangent", 13, 2, 14, 1))
sketch6.addConstraint(Sketcher.Constraint("Tangent", 14, 2, 15, 1))
sketch6.addConstraint(Sketcher.Constraint("Tangent", 15, 2, 16, 2))
sketch6.addConstraint(Sketcher.Constraint("Tangent", 16, 1, 17, 1))
sketch6.addConstraint(Sketcher.Constraint("Tangent", 17, 2, 18, 2))
sketch6.addConstraint(Sketcher.Constraint("Tangent", 18, 1, 19, 1))
sketch6.addConstraint(Sketcher.Constraint("Tangent", 19, 2, 20, 1))
sketch6.addConstraint(Sketcher.Constraint("Tangent", 20, 2, 21, 1))
sketch6.addConstraint(Sketcher.Constraint("Tangent", 21, 2, 22, 2))
sketch6.addConstraint(Sketcher.Constraint("Tangent", 22, 1, 23, 1))
sketch6.addConstraint(Sketcher.Constraint("Tangent", 23, 2, 0, 2))
sketch6.addConstraint(Sketcher.Constraint("Vertical", 1))
sketch6.addConstraint(Sketcher.Constraint("Horizontal", 3))
sketch6.addConstraint(Sketcher.Constraint("Vertical", 5))
sketch6.addConstraint(Sketcher.Constraint("Horizontal", 7))
sketch6.addConstraint(Sketcher.Constraint("Vertical", 9))
sketch6.addConstraint(Sketcher.Constraint("Horizontal", 11))
sketch6.addConstraint(Sketcher.Constraint("Vertical", 13))
sketch6.addConstraint(Sketcher.Constraint("Horizontal", 15))
sketch6.addConstraint(Sketcher.Constraint("Vertical", 17))
sketch6.addConstraint(Sketcher.Constraint("Horizontal", 19))
sketch6.addConstraint(Sketcher.Constraint("Vertical", 21))
sketch6.addConstraint(Sketcher.Constraint("Horizontal", 23))
sketch6.addConstraint(Sketcher.Constraint("Equal", 0, 2))
sketch6.addConstraint(Sketcher.Constraint("Equal", 2, 4))
sketch6.addConstraint(Sketcher.Constraint("Equal", 4, 6))
sketch6.addConstraint(Sketcher.Constraint("Equal", 6, 8))
sketch6.addConstraint(Sketcher.Constraint("Equal", 8, 10))
sketch6.addConstraint(Sketcher.Constraint("Equal", 10, 12))
sketch6.addConstraint(Sketcher.Constraint("Equal", 12, 14))
sketch6.addConstraint(Sketcher.Constraint("Equal", 14, 16))
sketch6.addConstraint(Sketcher.Constraint("Equal", 16, 18))
sketch6.addConstraint(Sketcher.Constraint("Equal", 18, 20))
sketch6.addConstraint(Sketcher.Constraint("Equal", 20, 22))
sketch6.addConstraint(Sketcher.Constraint("Symmetric", 0, 3, 12, 3, -1, 1))
sketch6.addConstraint(Sketcher.Constraint("Symmetric", 4, 3, 16, 3, -1, 1))
sketch6.addConstraint(Sketcher.Constraint("Symmetric", 8, 3, 20, 3, -1, 1))
sketch6.addConstraint(Sketcher.Constraint("Symmetric", 8, 3, 14, 3, -2))
sketch6.addConstraint(Sketcher.Constraint("Radius", 0, Q("0.25 in")))
sketch6.addConstraint(Sketcher.Constraint("DistanceX", 3, 2, 3, 1, Q("3.5 in")))
sketch6.addConstraint(Sketcher.Constraint("DistanceX", 11, 1, 11, 2, Q("11.5 in")))
sketch6.addConstraint(Sketcher.Constraint("DistanceY", 1, 1, 1, 2, Q("4.5 in")))
sketch6.addConstraint(Sketcher.Constraint("DistanceY", 5, 1, 5, 2, Q("9.5 in")))
pocket5 = body.newObject("PartDesign::Pocket", "Pocket004")
pocket5.Profile = sketch6
pocket5.Type = "ThroughAll"
pocket5.Reversed = True

# Sketch on XY plane
sketch7 = body.newObject("Sketcher::SketchObject", "Sketch006")
sketch7.AttachmentSupport = (doc.getObject("XY_Plane"), [""])
sketch7.MapMode = "FlatFace"
sketch7.addGeometry(Part.Circle(V(-230, -226, 0), V(0, 0, 1), 6), False)
sketch7.addGeometry(Part.Circle(V(-185, -226, 0), V(0, 0, 1), 6), False)
sketch7.addGeometry(Part.Circle(V(-230, -163, 0), V(0, 0, 1), 6), False)
sketch7.addGeometry(Part.Circle(V(-185, -163, 0), V(0, 0, 1), 6), False)
sketch7.addGeometry(Part.Circle(V(185, -226, 0), V(0, 0, 1), 6), False)
sketch7.addGeometry(Part.Circle(V(230, -226, 0), V(0, 0, 1), 6), False)
sketch7.addGeometry(Part.Circle(V(230, -163, 0), V(0, 0, 1), 6), False)
sketch7.addGeometry(Part.Circle(V(185, -163, 0), V(0, 0, 1), 6), False)
sketch7.addGeometry(Part.Circle(V(230, 163, 0), V(0, 0, 1), 6), False)
sketch7.addGeometry(Part.Circle(V(230, 226, 0), V(0, 0, 1), 6), False)
sketch7.addGeometry(Part.Circle(V(185, 226, 0), V(0, 0, 1), 6), False)
sketch7.addGeometry(Part.Circle(V(185, 163, 0), V(0, 0, 1), 6), False)
sketch7.addGeometry(Part.Circle(V(-185, 226, 0), V(0, 0, 1), 6), False)
sketch7.addGeometry(Part.Circle(V(-185, 163, 0), V(0, 0, 1), 6), False)
sketch7.addGeometry(Part.Circle(V(-230, 163, 0), V(0, 0, 1), 6), False)
sketch7.addGeometry(Part.Circle(V(-230, 226, 0), V(0, 0, 1), 6), False)
sketch7.addConstraint(Sketcher.Constraint("Equal", 0, 1))
sketch7.addConstraint(Sketcher.Constraint("Equal", 1, 2))
sketch7.addConstraint(Sketcher.Constraint("Equal", 2, 3))
sketch7.addConstraint(Sketcher.Constraint("Equal", 3, 4))
sketch7.addConstraint(Sketcher.Constraint("Equal", 4, 5))
sketch7.addConstraint(Sketcher.Constraint("Equal", 5, 6))
sketch7.addConstraint(Sketcher.Constraint("Equal", 6, 7))
sketch7.addConstraint(Sketcher.Constraint("Equal", 7, 8))
sketch7.addConstraint(Sketcher.Constraint("Equal", 8, 9))
sketch7.addConstraint(Sketcher.Constraint("Equal", 9, 10))
sketch7.addConstraint(Sketcher.Constraint("Equal", 10, 11))
sketch7.addConstraint(Sketcher.Constraint("Equal", 11, 12))
sketch7.addConstraint(Sketcher.Constraint("Equal", 12, 13))
sketch7.addConstraint(Sketcher.Constraint("Equal", 13, 14))
sketch7.addConstraint(Sketcher.Constraint("Equal", 14, 15))
sketch7.addConstraint(Sketcher.Constraint("Symmetric", 2, 3, 8, 3, -1, 1))
sketch7.addConstraint(Sketcher.Constraint("Symmetric", 0, 3, 9, 3, -1, 1))
sketch7.addConstraint(Sketcher.Constraint("Symmetric", 1, 3, 10, 3, -1, 1))
sketch7.addConstraint(Sketcher.Constraint("Symmetric", 3, 3, 11, 3, -1, 1))
sketch7.addConstraint(Sketcher.Constraint("Symmetric", 4, 3, 12, 3, -1, 1))
sketch7.addConstraint(Sketcher.Constraint("Symmetric", 7, 3, 13, 3, -1, 1))
sketch7.addConstraint(Sketcher.Constraint("Symmetric", 6, 3, 14, 3, -1, 1))
sketch7.addConstraint(Sketcher.Constraint("Symmetric", 5, 3, 15, 3, -1, 1))
sketch7.addConstraint(Sketcher.Constraint("Symmetric", 1, 3, 4, 3, -2))
sketch7.addConstraint(Sketcher.Constraint("Symmetric", 0, 3, 5, 3, -2))
sketch7.addConstraint(Sketcher.Constraint("Symmetric", 2, 3, 6, 3, -2))
sketch7.addConstraint(Sketcher.Constraint("Symmetric", 3, 3, 7, 3, -2))
sketch7.addConstraint(Sketcher.Constraint("Horizontal", 0, 3, 1, 3))
sketch7.addConstraint(Sketcher.Constraint("Horizontal", 2, 3, 3, 3))
sketch7.addConstraint(Sketcher.Constraint("Vertical", 0, 3, 2, 3))
sketch7.addConstraint(Sketcher.Constraint("Vertical", 1, 3, 3, 3))
sketch7.addConstraint(Sketcher.Constraint("Diameter", 0, Q("0.5 in")))
sketch7.addConstraint(Sketcher.Constraint("DistanceY", 0, 3, -1, 1, Q("8.9 in")))
sketch7.addConstraint(Sketcher.Constraint("DistanceY", 2, 3, -1, 1, Q("6.4 in")))
sketch7.addConstraint(Sketcher.Constraint("DistanceX", 0, 3, 1, 3, Q("1.75 in")))
sketch7.addConstraint(Sketcher.Constraint("DistanceX", 0, 3, -1, 1, Q("9.037 in")))
pocket6 = body.newObject("PartDesign::Pocket", "Pocket005")
pocket6.Profile = sketch7
pocket6.Type = "ThroughAll"
pocket6.Reversed = True

# Sketch on YZ plane
sketch8 = body.newObject("Sketcher::SketchObject", "Sketch007")
sketch8.AttachmentSupport = (doc.getObject("YZ_Plane"), [""])
sketch8.MapMode = "FlatFace"
sketch8.AttachmentOffset = App.Placement(V(0, 0, 12 * 25.4), App.Rotation())
sketch8.addGeometry(Part.Circle(V(-25.4, 533.4, 0), V(0, 0, 1), 2.5), False)
sketch8.addGeometry(Part.Circle(V(25.4, 533.4, 0), V(0, 0, 1), 2.5), False)
sketch8.addConstraint(Sketcher.Constraint("Equal", 0, 1))
sketch8.addConstraint(Sketcher.Constraint("Symmetric", 0, 3, 1, 3, -2))
sketch8.addConstraint(Sketcher.Constraint("Diameter", 0, Q("0.195 in")))
sketch8.addConstraint(Sketcher.Constraint("DistanceX", 0, 3, -1, 1, Q("1 in")))
sketch8.addConstraint(Sketcher.Constraint("DistanceY", -1, 1, 0, 3, Q("21 in")))
pocket7 = body.newObject("PartDesign::Pocket", "Pocket006")
pocket7.Profile = sketch8
pocket7.Type = "ThroughAll"

doc.recompute()
